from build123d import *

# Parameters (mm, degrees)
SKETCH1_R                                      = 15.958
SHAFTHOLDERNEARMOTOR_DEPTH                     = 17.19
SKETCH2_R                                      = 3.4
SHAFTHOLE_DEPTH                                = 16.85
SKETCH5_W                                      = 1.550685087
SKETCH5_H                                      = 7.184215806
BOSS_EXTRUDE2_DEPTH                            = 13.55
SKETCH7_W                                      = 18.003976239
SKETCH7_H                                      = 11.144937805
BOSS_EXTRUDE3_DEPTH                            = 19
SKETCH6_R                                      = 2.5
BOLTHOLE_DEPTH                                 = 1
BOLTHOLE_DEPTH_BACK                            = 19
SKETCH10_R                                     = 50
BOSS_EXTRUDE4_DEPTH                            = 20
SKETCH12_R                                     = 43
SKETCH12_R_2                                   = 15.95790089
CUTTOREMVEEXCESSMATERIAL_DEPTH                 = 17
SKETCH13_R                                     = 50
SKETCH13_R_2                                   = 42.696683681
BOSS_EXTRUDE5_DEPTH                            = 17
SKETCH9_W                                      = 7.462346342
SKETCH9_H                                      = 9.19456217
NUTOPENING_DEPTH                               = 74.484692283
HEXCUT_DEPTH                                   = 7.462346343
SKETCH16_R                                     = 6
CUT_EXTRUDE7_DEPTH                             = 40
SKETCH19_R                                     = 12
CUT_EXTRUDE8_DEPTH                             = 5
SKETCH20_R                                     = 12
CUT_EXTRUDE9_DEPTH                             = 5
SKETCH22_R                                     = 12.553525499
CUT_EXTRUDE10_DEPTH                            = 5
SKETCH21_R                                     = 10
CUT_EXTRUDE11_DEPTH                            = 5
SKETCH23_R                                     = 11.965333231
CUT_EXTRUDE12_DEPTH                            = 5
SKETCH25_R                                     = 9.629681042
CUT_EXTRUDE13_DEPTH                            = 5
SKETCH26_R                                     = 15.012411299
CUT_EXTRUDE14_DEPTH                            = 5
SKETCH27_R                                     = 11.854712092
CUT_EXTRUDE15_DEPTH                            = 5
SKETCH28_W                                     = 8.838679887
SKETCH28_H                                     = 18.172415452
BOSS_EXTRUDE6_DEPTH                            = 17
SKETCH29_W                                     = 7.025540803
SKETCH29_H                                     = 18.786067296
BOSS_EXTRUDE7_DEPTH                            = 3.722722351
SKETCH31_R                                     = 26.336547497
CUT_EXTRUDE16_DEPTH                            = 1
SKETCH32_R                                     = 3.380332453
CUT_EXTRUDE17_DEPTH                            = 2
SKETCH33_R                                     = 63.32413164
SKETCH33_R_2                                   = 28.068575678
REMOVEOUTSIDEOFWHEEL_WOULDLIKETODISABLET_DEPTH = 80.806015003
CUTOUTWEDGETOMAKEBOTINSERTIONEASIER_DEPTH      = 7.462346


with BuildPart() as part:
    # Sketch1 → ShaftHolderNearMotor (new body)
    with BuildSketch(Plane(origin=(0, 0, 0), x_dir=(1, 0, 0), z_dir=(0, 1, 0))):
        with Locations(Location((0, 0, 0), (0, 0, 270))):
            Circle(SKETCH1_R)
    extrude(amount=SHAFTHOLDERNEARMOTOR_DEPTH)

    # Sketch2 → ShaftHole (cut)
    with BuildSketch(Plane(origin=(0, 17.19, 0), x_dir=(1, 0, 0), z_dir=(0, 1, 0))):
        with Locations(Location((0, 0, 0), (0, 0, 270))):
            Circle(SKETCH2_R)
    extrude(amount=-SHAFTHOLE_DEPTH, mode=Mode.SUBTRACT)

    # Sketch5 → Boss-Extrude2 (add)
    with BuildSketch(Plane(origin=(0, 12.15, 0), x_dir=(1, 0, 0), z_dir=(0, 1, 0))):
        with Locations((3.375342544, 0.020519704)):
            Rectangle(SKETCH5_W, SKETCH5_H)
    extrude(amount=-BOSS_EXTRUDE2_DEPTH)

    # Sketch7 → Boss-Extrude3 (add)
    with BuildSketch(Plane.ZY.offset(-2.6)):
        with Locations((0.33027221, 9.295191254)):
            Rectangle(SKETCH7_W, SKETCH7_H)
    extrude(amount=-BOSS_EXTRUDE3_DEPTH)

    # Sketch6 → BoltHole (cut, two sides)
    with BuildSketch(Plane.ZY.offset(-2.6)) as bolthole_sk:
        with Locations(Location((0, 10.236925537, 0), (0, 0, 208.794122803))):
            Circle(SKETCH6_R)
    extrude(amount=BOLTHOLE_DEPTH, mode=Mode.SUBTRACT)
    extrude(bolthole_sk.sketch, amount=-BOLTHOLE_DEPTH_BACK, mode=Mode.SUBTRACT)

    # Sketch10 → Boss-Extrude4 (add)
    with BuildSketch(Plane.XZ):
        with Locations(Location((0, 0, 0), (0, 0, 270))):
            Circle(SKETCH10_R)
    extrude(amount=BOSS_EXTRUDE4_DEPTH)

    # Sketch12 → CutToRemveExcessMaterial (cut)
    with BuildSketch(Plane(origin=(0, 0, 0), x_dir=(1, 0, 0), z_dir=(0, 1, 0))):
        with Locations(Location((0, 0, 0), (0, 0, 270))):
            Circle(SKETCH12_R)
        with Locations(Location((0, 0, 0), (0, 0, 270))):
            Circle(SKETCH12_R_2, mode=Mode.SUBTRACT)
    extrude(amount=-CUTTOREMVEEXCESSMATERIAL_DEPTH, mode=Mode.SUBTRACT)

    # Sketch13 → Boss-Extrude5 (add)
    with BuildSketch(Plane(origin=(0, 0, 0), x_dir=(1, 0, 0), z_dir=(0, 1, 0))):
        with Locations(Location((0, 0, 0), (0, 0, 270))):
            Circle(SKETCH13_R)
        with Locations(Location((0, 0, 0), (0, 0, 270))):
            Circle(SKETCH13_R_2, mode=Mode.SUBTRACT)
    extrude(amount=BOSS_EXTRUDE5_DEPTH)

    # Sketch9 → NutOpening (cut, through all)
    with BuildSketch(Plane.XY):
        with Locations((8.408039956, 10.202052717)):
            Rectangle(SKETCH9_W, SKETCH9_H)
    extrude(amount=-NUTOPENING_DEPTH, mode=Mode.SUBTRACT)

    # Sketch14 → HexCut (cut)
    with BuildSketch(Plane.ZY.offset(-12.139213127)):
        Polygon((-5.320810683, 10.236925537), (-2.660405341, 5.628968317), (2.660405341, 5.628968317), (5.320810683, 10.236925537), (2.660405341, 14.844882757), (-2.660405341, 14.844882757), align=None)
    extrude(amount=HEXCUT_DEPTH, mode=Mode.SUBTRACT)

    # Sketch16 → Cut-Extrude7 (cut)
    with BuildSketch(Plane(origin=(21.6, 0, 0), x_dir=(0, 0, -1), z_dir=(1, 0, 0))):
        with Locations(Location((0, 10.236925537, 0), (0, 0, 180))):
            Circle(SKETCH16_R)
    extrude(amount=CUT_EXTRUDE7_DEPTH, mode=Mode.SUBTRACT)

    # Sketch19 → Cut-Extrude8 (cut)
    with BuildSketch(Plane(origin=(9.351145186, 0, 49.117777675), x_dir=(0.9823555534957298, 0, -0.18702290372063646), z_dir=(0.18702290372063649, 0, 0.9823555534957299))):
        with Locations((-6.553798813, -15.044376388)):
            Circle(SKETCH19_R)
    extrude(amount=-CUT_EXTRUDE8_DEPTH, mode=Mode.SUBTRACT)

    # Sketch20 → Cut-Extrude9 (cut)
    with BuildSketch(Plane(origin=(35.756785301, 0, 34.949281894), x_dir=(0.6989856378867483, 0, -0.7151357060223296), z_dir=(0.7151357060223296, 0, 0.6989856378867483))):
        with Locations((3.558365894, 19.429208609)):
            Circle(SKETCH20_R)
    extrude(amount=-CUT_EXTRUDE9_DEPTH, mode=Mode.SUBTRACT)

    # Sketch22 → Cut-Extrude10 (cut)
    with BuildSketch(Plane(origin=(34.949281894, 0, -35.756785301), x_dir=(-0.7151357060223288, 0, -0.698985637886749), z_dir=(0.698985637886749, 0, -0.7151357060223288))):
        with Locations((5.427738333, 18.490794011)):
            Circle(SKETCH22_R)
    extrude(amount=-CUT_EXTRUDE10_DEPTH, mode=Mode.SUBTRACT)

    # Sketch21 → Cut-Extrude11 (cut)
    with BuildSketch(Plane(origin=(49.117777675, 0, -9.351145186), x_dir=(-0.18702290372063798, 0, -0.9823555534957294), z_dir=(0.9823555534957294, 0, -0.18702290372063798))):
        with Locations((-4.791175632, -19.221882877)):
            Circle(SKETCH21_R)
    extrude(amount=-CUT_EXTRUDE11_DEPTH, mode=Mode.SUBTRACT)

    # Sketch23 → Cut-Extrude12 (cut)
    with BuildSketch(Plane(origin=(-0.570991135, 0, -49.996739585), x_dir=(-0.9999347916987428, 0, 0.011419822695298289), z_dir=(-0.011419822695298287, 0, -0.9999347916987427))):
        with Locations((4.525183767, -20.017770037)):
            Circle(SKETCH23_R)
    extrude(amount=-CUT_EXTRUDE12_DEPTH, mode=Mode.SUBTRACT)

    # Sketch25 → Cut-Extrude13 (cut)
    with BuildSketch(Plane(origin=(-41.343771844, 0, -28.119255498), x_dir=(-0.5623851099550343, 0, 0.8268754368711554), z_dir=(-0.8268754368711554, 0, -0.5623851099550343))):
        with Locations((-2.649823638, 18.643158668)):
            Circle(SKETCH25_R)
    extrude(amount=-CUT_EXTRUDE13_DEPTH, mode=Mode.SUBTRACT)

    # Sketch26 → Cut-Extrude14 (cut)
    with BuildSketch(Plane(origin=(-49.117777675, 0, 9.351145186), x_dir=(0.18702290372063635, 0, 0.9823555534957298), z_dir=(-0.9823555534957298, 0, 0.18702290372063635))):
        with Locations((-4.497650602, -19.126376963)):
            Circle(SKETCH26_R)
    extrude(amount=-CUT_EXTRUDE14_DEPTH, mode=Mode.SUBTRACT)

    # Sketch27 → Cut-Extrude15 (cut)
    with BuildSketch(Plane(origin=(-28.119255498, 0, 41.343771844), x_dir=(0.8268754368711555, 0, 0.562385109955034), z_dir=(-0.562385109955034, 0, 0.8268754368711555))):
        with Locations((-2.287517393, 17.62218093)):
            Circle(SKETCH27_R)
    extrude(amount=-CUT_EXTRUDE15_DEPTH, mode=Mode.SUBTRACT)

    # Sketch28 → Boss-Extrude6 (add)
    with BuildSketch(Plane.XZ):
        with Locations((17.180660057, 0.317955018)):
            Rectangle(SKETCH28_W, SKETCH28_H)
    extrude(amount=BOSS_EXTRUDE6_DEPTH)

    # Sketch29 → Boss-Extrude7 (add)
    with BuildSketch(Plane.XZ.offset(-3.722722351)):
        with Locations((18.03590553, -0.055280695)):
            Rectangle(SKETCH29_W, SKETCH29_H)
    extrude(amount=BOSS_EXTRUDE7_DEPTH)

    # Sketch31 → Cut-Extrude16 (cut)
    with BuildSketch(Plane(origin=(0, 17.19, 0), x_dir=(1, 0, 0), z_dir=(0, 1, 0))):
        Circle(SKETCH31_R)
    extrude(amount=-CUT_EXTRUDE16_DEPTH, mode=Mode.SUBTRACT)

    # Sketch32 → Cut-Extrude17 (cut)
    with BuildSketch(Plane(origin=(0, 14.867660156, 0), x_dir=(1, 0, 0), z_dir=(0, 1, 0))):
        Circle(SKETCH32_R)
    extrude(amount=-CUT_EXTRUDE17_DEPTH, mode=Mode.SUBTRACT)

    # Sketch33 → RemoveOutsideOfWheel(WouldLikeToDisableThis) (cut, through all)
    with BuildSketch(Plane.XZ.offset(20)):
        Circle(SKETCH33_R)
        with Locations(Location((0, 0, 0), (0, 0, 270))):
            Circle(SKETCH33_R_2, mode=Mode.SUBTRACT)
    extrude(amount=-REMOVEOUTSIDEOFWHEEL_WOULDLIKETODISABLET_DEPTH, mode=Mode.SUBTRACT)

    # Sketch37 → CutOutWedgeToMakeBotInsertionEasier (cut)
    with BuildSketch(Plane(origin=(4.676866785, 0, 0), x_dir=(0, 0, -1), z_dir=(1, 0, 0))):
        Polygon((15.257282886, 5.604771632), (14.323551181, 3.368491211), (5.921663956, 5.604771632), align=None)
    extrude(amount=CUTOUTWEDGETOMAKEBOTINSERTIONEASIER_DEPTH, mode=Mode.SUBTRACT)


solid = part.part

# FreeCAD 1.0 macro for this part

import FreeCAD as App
import Part
import Sketcher

V = App.Vector
Q = App.Units.Quantity


def add_polygon(sketch, points):
    """Adds a closed chain of lines whose ends are joined by coincident constraints."""
    first, n = sketch.GeometryCount, len(points)
    for a, b in zip(points, points[1:] + points[:1]):
        sketch.addGeometry(Part.LineSegment(App.Vector(*a, 0), App.Vector(*b, 0)), False)
    for i in range(n):
        sketch.addConstraint(Sketcher.Constraint("Coincident", first + i, 2, first + (i + 1) % n, 1))

doc = App.newDocument("Part")
body = doc.addObject("PartDesign::Body", "Body")

sketch1 = body.newObject("Sketcher::SketchObject", "Sketch")
sketch1.AttachmentSupport = (doc.getObject("XZ_Plane"), [""])
sketch1.MapMode = "FlatFace"
sketch1.addGeometry(Part.Circle(V(0, 0, 0), V(0, 0, 1), 15.958), False)
sketch1.addConstraint([
    Sketcher.Constraint("Coincident", 0, 3, -1, 1),
    Sketcher.Constraint("Diameter", 0, 31.916),
])
pad1 = body.newObject("PartDesign::Pad", "Pad")
pad1.Profile = sketch1
pad1.Length = 17.19
pad1.Reversed = True

sketch2 = body.newObject("Sketcher::SketchObject", "Sketch001")
sketch2.AttachmentSupport = (doc.getObject("XZ_Plane"), [""])
sketch2.MapMode = "FlatFace"
sketch2.AttachmentOffset = App.Placement(V(0, 0, -17.19), App.Rotation())
sketch2.addGeometry(Part.Circle(V(0, 0, 0), V(0, 0, 1), 3.4), False)
sketch2.addConstraint([
    Sketcher.Constraint("Coincident", 0, 3, -1, 1),
    Sketcher.Constraint("Diameter", 0, 6.8),
])
pocket1 = body.newObject("PartDesign::Pocket", "Pocket")
pocket1.Profile = sketch2
pocket1.Length = 16.85
pocket1.Reversed = True

sketch3 = body.newObject("Sketcher::SketchObject", "Sketch002")
sketch3.AttachmentSupport = (doc.getObject("XZ_Plane"), [""])
sketch3.MapMode = "FlatFace"
sketch3.AttachmentOffset = App.Placement(V(0, 0, -12.15), App.Rotation())
add_polygon(sketch3, [(2.6, -3.612628), (2.6, 3.571588), (4.150685, 3.571588), (4.150685, -3.612628)])
sketch3.addConstraint([
    Sketcher.Constraint("Vertical", 0),
    Sketcher.Constraint("Horizontal", 1),
    Sketcher.Constraint("Vertical", 2),
    Sketcher.Constraint("Horizontal", 3),
    Sketcher.Constraint("DistanceX", -1, 1, 0, 2, 2.6),
    Sketcher.Constraint("DistanceX", 1, 1, 1, 2, 1.550685),
    Sketcher.Constraint("DistanceY", 0, 1, 0, 2, 7.184216),
    Sketcher.Constraint("DistanceY", -1, 1, 0, 2, 3.571588),
])
pad2 = body.newObject("PartDesign::Pad", "Pad001")
pad2.Profile = sketch3
pad2.Length = 13.55

sketch4 = body.newObject("Sketcher::SketchObject", "Sketch003")
sketch4.AttachmentSupport = (doc.getObject("YZ_Plane"), [""])
sketch4.MapMode = "FlatFace"
sketch4.AttachmentOffset = App.Placement(V(0, 0, 2.6), App.Rotation())
add_polygon(sketch4, [(14.86766, -8.671716), (3.722722, -8.671716), (3.722722, 9.33226), (14.86766, 9.33226)])
sketch4.addConstraint([
    Sketcher.Constraint("Horizontal", 0),
    Sketcher.Constraint("Vertical", 1),
    Sketcher.Constraint("Horizontal", 2),
    Sketcher.Constraint("Vertical", 3),
    Sketcher.Constraint("DistanceX", 0, 2, 0, 1, 11.144938),
    Sketcher.Constraint("DistanceY", 1, 1, 1, 2, 18.003976),
    Sketcher.Constraint("DistanceY", -1, 1, 1, 2, 9.33226),
    Sketcher.Constraint("DistanceX", -1, 1, 2, 2, 14.86766),
])
pad3 = body.newObject("PartDesign::Pad", "Pad002")
pad3.Profile = sketch4
pad3.Length = 19

sketch5 = body.newObject("Sketcher::SketchObject", "Sketch004")
sketch5.AttachmentSupport = (doc.getObject("YZ_Plane"), [""])
sketch5.MapMode = "FlatFace"
sketch5.AttachmentOffset = App.Placement(V(0, 0, 2.6), App.Rotation())
sketch5.addGeometry(Part.Circle(V(10.236926, 0, 0), V(0, 0, 1), 2.5), False)
sketch5.addConstraint([
    Sketcher.Constraint("PointOnObject", 0, 3, -1),
    Sketcher.Constraint("Diameter", 0, 5.0),
    Sketcher.Constraint("DistanceX", -1, 1, 0, 3, 10.236926),
])
pocket2 = body.newObject("PartDesign::Pocket", "Pocket001")
pocket2.Profile = sketch5
pocket2.Type = "TwoLengths"
pocket2.Length = 1
pocket2.Length2 = 19

sketch6 = body.newObject("Sketcher::SketchObject", "Sketch005")
sketch6.AttachmentSupport = (doc.getObject("XZ_Plane"), [""])
sketch6.MapMode = "FlatFace"
sketch6.addGeometry(Part.Circle(V(0, 0, 0), V(0, 0, 1), 50), False)
sketch6.addConstraint([
    Sketcher.Constraint("Coincident", 0, 3, -1, 1),
    Sketcher.Constraint("Diameter", 0, 100.0),
])
pad4 = body.newObject("PartDesign::Pad", "Pad003")
pad4.Profile = sketch6
pad4.Length = 20

sketch7 = body.newObject("Sketcher::SketchObject", "Sketch006")
sketch7.AttachmentSupport = (doc.getObject("XZ_Plane"), [""])
sketch7.MapMode = "FlatFace"
sketch7.addGeometry([
    Part.Circle(V(0, 0, 0), V(0, 0, 1), 43),
    Part.Circle(V(0, 0, 0), V(0, 0, 1), 15.957901),
], False)
sketch7.addConstraint([
    Sketcher.Constraint("Coincident", 0, 3, -1, 1),
    Sketcher.Constraint("Coincident", 1, 3, -1, 1),
    Sketcher.Constraint("Diameter", 0, 86.0),
    Sketcher.Constraint("Diameter", 1, 31.915802),
])
pocket3 = body.newObject("PartDesign::Pocket", "Pocket002")
pocket3.Profile = sketch7
pocket3.Length = 17
pocket3.Reversed = True

sketch8 = body.newObject("Sketcher::SketchObject", "Sketch007")
sketch8.AttachmentSupport = (doc.getObject("XZ_Plane"), [""])
sketch8.MapMode = "FlatFace"
sketch8.addGeometry([
    Part.Circle(V(0, 0, 0), V(0, 0, 1), 50),
    Part.Circle(V(0, 0, 0), V(0, 0, 1), 42.696684),
], False)
sketch8.addConstraint([
    Sketcher.Constraint("Coincident", 0, 3, -1, 1),
    Sketcher.Constraint("Coincident", 1, 3, -1, 1),
    Sketcher.Constraint("Diameter", 0, 100.0),
    Sketcher.Constraint("Diameter", 1, 85.393367),
])
pad5 = body.newObject("PartDesign::Pad", "Pad004")
pad5.Profile = sketch8
pad5.Length = 17
pad5.Reversed = True

sketch9 = body.newObject("Sketcher::SketchObject", "Sketch008")
sketch9.AttachmentSupport = (doc.getObject("XY_Plane"), [""])
sketch9.MapMode = "FlatFace"
add_polygon(sketch9, [(4.676867, 14.799334), (4.676867, 5.604772), (12.139213, 5.604772), (12.139213, 14.799334)])
sketch9.addConstraint([
    Sketcher.Constraint("Vertical", 0),
    Sketcher.Constraint("Horizontal", 1),
    Sketcher.Constraint("Vertical", 2),
    Sketcher.Constraint("Horizontal", 3),
    Sketcher.Constraint("DistanceX", 1, 1, 1, 2, 7.462346),
    Sketcher.Constraint("DistanceY", 0, 2, 0, 1, 9.194562),
    Sketcher.Constraint("DistanceY", -1, 1, 0, 2, 5.604772),
    Sketcher.Constraint("DistanceX", -1, 1, 0, 2, 4.676867),
])
pocket4 = body.newObject("PartDesign::Pocket", "Pocket003")
pocket4.Profile = sketch9
pocket4.Type = "ThroughAll"

sketch10 = body.newObject("Sketcher::SketchObject", "Sketch009")
sketch10.AttachmentSupport = (doc.getObject("YZ_Plane"), [""])
sketch10.MapMode = "FlatFace"
sketch10.AttachmentOffset = App.Placement(V(0, 0, 12.139213), App.Rotation())
add_polygon(sketch10, [(10.236926, -5.320811), (5.628968, -2.660405), (5.628968, 2.660405), (10.236926, 5.320811), (14.844883, 2.660405), (14.844883, -2.660405)])
sketch10.addConstraint([
    Sketcher.Constraint("Vertical", 1),
    Sketcher.Constraint("Vertical", 4),
    Sketcher.Constraint("Symmetric", 2, 2, 5, 2, -1),
    Sketcher.Constraint("Parallel", 0, 3),
    Sketcher.Constraint("Parallel", 2, 5),
    Sketcher.Constraint("Horizontal", 1, 2, 3, 2),
    Sketcher.Constraint("Horizontal", 0, 2, 4, 2),
    Sketcher.Constraint("Angle", 0, Q("150 deg")),
    Sketcher.Constraint("DistanceY", 1, 1, 1, 2, 5.320811),
    Sketcher.Constraint("Distance", 0, 5.320811),
    Sketcher.Constraint("DistanceX", -1, 1, 0, 2, 5.628968),
])
pocket5 = body.newObject("PartDesign::Pocket", "Pocket004")
pocket5.Profile = sketch10
pocket5.Length = 7.462346

sketch11 = body.newObject("Sketcher::SketchObject", "Sketch010")
sketch11.AttachmentSupport = (doc.getObject("YZ_Plane"), [""])
sketch11.MapMode = "FlatFace"
sketch11.AttachmentOffset = App.Placement(V(0, 0, 21.6), App.Rotation())
sketch11.addGeometry(Part.Circle(V(10.236926, 0, 0), V(0, 0, 1), 6), False)
sketch11.addConstraint([
    Sketcher.Constraint("PointOnObject", 0, 3, -1),
    Sketcher.Constraint("Diameter", 0, 12.0),
    Sketcher.Constraint("DistanceX", -1, 1, 0, 3, 10.236926),
])
pocket6 = body.newObject("PartDesign::Pocket", "Pocket005")
pocket6.Profile = sketch11
pocket6.Length = 40
pocket6.Reversed = True

sketch12 = body.newObject("Sketcher::SketchObject", "Sketch011")
sketch12.Placement = App.Placement(V(9.351145, 0, 49.117778), App.Rotation(V(0.982355553, 0, -0.187022904), V(0, 0.999999999, 0), V(0.187022904, 0, 0.982355553), "ZXY"))
sketch12.addGeometry(Part.Circle(V(-6.553799, -15.044376, 0), V(0, 0, 1), 12), False)
sketch12.addConstraint([
    Sketcher.Constraint("Diameter", 0, 24.0),
    Sketcher.Constraint("DistanceX", 0, 3, -1, 1, 6.553799),
    Sketcher.Constraint("DistanceY", 0, 3, -1, 1, 15.044376),
])
pocket7 = body.newObject("PartDesign::Pocket", "Pocket006")
pocket7.Profile = sketch12
pocket7.Length = 5

sketch13 = body.newObject("Sketcher::SketchObject", "Sketch012")
sketch13.Placement = App.Placement(V(35.756785, 0, 34.949282), App.Rotation(V(0.698985638, 0, -0.715135706), V(0, 1, 0), V(0.715135706, 0, 0.698985638), "ZXY"))
sketch13.addGeometry(Part.Circle(V(3.558366, 19.429209, 0), V(0, 0, 1), 12), False)
sketch13.addConstraint([
    Sketcher.Constraint("Diameter", 0, 24.0),
    Sketcher.Constraint("DistanceY", -1, 1, 0, 3, 19.429209),
    Sketcher.Constraint("DistanceX", -1, 1, 0, 3, 3.558366),
])
pocket8 = body.newObject("PartDesign::Pocket", "Pocket007")
pocket8.Profile = sketch13
pocket8.Length = 5

sketch14 = body.newObject("Sketcher::SketchObject", "Sketch013")
sketch14.Placement = App.Placement(V(34.949282, 0, -35.756785), App.Rotation(V(-0.715135706, 0, -0.698985638), V(0, 1, 0), V(0.698985638, 0, -0.715135706), "ZXY"))
sketch14.addGeometry(Part.Circle(V(5.427738, 18.490794, 0), V(0, 0, 1), 12.553525), False)
sketch14.addConstraint([
    Sketcher.Constraint("Diameter", 0, 25.107051),
    Sketcher.Constraint("DistanceX", -1, 1, 0, 3, 5.427738),
    Sketcher.Constraint("DistanceY", -1, 1, 0, 3, 18.490794),
])
pocket9 = body.newObject("PartDesign::Pocket", "Pocket008")
pocket9.Profile = sketch14
pocket9.Length = 5

sketch15 = body.newObject("Sketcher::SketchObject", "Sketch014")
sketch15.Placement = App.Placement(V(49.117778, 0, -9.351145), App.Rotation(V(-0.187022904, 0, -0.982355553), V(0, 0.999999999, 0), V(0.982355553, 0, -0.187022904), "ZXY"))
sketch15.addGeometry(Part.Circle(V(-4.791176, -19.221883, 0), V(0, 0, 1), 10), False)
sketch15.addConstraint([
    Sketcher.Constraint("Diameter", 0, 20.0),
    Sketcher.Constraint("DistanceX", 0, 3, -1, 1, 4.791176),
    Sketcher.Constraint("DistanceY", 0, 3, -1, 1, 19.221883),
])
pocket10 = body.newObject("PartDesign::Pocket", "Pocket009")
pocket10.Profile = sketch15
pocket10.Length = 5

sketch16 = body.newObject("Sketcher::SketchObject", "Sketch015")
sketch16.Placement = App.Placement(V(-0.570991, 0, -49.99674), App.Rotation(V(-0.999934792, 0, 0.011419823), V(0, 1.000000001, 0), V(-0.011419823, 0, -0.999934792), "ZXY"))
sketch16.addGeometry(Part.Circle(V(4.525184, -20.01777, 0), V(0, 0, 1), 11.965333), False)
sketch16.addConstraint([
    Sketcher.Constraint("Diameter", 0, 23.930666),
    Sketcher.Constraint("DistanceY", 0, 3, -1, 1, 20.01777),
    Sketcher.Constraint("DistanceX", -1, 1, 0, 3, 4.525184),
])
pocket11 = body.newObject("PartDesign::Pocket", "Pocket010")
pocket11.Profile = sketch16
pocket11.Length = 5

sketch17 = body.newObject("Sketcher::SketchObject", "Sketch016")
sketch17.Placement = App.Placement(V(-41.343772, 0, -28.119255), App.Rotation(V(-0.56238511, 0, 0.826875437), V(0, 1, 0), V(-0.826875437, 0, -0.56238511), "ZXY"))
sketch17.addGeometry(Part.Circle(V(-2.649824, 18.643159, 0), V(0, 0, 1), 9.629681), False)
sketch17.addConstraint([
    Sketcher.Constraint("Diameter", 0, 19.259362),
    Sketcher.Constraint("DistanceY", -1, 1, 0, 3, 18.643159),
    Sketcher.Constraint("DistanceX", 0, 3, -1, 1, 2.649824),
])
pocket12 = body.newObject("PartDesign::Pocket", "Pocket011")
pocket12.Profile = sketch17
pocket12.Length = 5

sketch18 = body.newObject("Sketcher::SketchObject", "Sketch017")
sketch18.Placement = App.Placement(V(-49.117778, 0, 9.351145), App.Rotation(V(0.187022904, 0, 0.982355553), V(0, 0.999999999, 0), V(-0.982355553, 0, 0.187022904), "ZXY"))
sketch18.addGeometry(Part.Circle(V(-4.497651, -19.126377, 0), V(0, 0, 1), 15.012411), False)
sketch18.addConstraint([
    Sketcher.Constraint("Diameter", 0, 30.024823),
    Sketcher.Constraint("DistanceX", 0, 3, -1, 1, 4.497651),
    Sketcher.Constraint("DistanceY", 0, 3, -1, 1, 19.126377),
])
pocket13 = body.newObject("PartDesign::Pocket", "Pocket012")
pocket13.Profile = sketch18
pocket13.Length = 5

sketch19 = body.newObject("Sketcher::SketchObject", "Sketch018")
sketch19.Placement = App.Placement(V(-28.119255, 0, 41.343772), App.Rotation(V(0.826875437, 0, 0.56238511), V(0, 1, 0), V(-0.56238511, 0, 0.826875437), "ZXY"))
sketch19.addGeometry(Part.Circle(V(-2.287517, 17.622181, 0), V(0, 0, 1), 11.854712), False)
sketch19.addConstraint([
    Sketcher.Constraint("Diameter", 0, 23.709424),
    Sketcher.Constraint("DistanceY", -1, 1, 0, 3, 17.622181),
    Sketcher.Constraint("DistanceX", 0, 3, -1, 1, 2.287517),
])
pocket14 = body.newObject("PartDesign::Pocket", "Pocket013")
pocket14.Profile = sketch19
pocket14.Length = 5

sketch20 = body.newObject("Sketcher::SketchObject", "Sketch019")
sketch20.AttachmentSupport = (doc.getObject("XZ_Plane"), [""])
sketch20.MapMode = "FlatFace"
add_polygon(sketch20, [(12.76132, 9.404163), (12.76132, -8.768253), (21.6, -8.768253), (21.6, 9.404163)])
sketch20.addConstraint([
    Sketcher.Constraint("Vertical", 0),
    Sketcher.Constraint("Horizontal", 1),
    Sketcher.Constraint("Vertical", 2),
    Sketcher.Constraint("Horizontal", 3),
    Sketcher.Constraint("DistanceX", -1, 1, 1, 2, 21.6),
    Sketcher.Constraint("DistanceX", 1, 1, 1, 2, 8.83868),
    Sketcher.Constraint("DistanceY", 0, 2, 0, 1, 18.172415),
    Sketcher.Constraint("DistanceY", 0, 2, -1, 1, 8.768253),
])
pad6 = body.newObject("PartDesign::Pad", "Pad005")
pad6.Profile = sketch20
pad6.Length = 17

sketch21 = body.newObject("Sketcher::SketchObject", "Sketch020")
sketch21.AttachmentSupport = (doc.getObject("XZ_Plane"), [""])
sketch21.MapMode = "FlatFace"
sketch21.AttachmentOffset = App.Placement(V(0, 0, -3.722722), App.Rotation())
add_polygon(sketch21, [(14.523135, 9.337753), (14.523135, -9.448314), (21.548676, -9.448314), (21.548676, 9.337753)])
sketch21.addConstraint([
    Sketcher.Constraint("Vertical", 0),
    Sketcher.Constraint("Horizontal", 1),
    Sketcher.Constraint("Vertical", 2),
    Sketcher.Constraint("Horizontal", 3),
    Sketcher.Constraint("DistanceX", 1, 1, 1, 2, 7.025541),
    Sketcher.Constraint("DistanceY", 0, 2, 0, 1, 18.786067),
    Sketcher.Constraint("DistanceX", -1, 1, 0, 2, 14.523135),
    Sketcher.Constraint("DistanceY", 0, 2, -1, 1, 9.448314),
])
pad7 = body.newObject("PartDesign::Pad", "Pad006")
pad7.Profile = sketch21
pad7.Length = 3.722722

sketch22 = body.newObject("Sketcher::SketchObject", "Sketch021")
sketch22.AttachmentSupport = (doc.getObject("XZ_Plane"), [""])
sketch22.MapMode = "FlatFace"
sketch22.AttachmentOffset = App.Placement(V(0, 0, -17.19), App.Rotation())
sketch22.addGeometry(Part.Circle(V(0, 0, 0), V(0, 0, 1), 26.336547), False)
sketch22.addConstraint([
    Sketcher.Constraint("Coincident", 0, 3, -1, 1),
    Sketcher.Constraint("Diameter", 0, 52.673095),
])
pocket15 = body.newObject("PartDesign::Pocket", "Pocket014")
pocket15.Profile = sketch22
pocket15.Length = 1
pocket15.Reversed = True

sketch23 = body.newObject("Sketcher::SketchObject", "Sketch022")
sketch23.AttachmentSupport = (doc.getObject("XZ_Plane"), [""])
sketch23.MapMode = "FlatFace"
sketch23.AttachmentOffset = App.Placement(V(0, 0, -14.86766), App.Rotation())
sketch23.addGeometry(Part.Circle(V(0, 0, 0), V(0, 0, 1), 3.380332), False)
sketch23.addConstraint([
    Sketcher.Constraint("Coincident", 0, 3, -1, 1),
    Sketcher.Constraint("Diameter", 0, 6.760665),
])
pocket16 = body.newObject("PartDesign::Pocket", "Pocket015")
pocket16.Profile = sketch23
pocket16.Length = 2
pocket16.Reversed = True

sketch24 = body.newObject("Sketcher::SketchObject", "Sketch023")
sketch24.AttachmentSupport = (doc.getObject("XZ_Plane"), [""])
sketch24.MapMode = "FlatFace"
sketch24.AttachmentOffset = App.Placement(V(0, 0, 20), App.Rotation())
sketch24.addGeometry([
    Part.Circle(V(0, 0, 0), V(0, 0, 1), 63.324132),
    Part.Circle(V(0, 0, 0), V(0, 0, 1), 28.068576),
], False)
sketch24.addConstraint([
    Sketcher.Constraint("Coincident", 0, 3, -1, 1),
    Sketcher.Constraint("Coincident", 1, 3, -1, 1),
    Sketcher.Constraint("Diameter", 1, 56.137151),
    Sketcher.Constraint("Diameter", 0, 126.648263),
])
pocket17 = body.newObject("PartDesign::Pocket", "Pocket016")
pocket17.Profile = sketch24
pocket17.Type = "ThroughAll"

sketch25 = body.newObject("Sketcher::SketchObject", "Sketch024")
sketch25.AttachmentSupport = (doc.getObject("YZ_Plane"), [""])
sketch25.MapMode = "FlatFace"
sketch25.AttachmentOffset = App.Placement(V(0, 0, 4.676867), App.Rotation())
add_polygon(sketch25, [(3.368491, -14.323551), (5.604772, -15.257283), (5.604772, -5.921664)])
sketch25.addConstraint([
    Sketcher.Constraint("Vertical", 1),
    Sketcher.Constraint("DistanceY", 1, 1, 1, 2, 9.335619),
    Sketcher.Constraint("DistanceX", -1, 1, 0, 2, 5.604772),
    Sketcher.Constraint("DistanceX", -1, 1, 2, 2, 3.368491),
    Sketcher.Constraint("DistanceY", 2, 2, -1, 1, 14.323551),
    Sketcher.Constraint("DistanceY", 0, 2, 2, 2, 0.933732),
])
pocket18 = body.newObject("PartDesign::Pocket", "Pocket017")
pocket18.Profile = sketch25
pocket18.Length = 7.462346
pocket18.Reversed = True

doc.recompute()
